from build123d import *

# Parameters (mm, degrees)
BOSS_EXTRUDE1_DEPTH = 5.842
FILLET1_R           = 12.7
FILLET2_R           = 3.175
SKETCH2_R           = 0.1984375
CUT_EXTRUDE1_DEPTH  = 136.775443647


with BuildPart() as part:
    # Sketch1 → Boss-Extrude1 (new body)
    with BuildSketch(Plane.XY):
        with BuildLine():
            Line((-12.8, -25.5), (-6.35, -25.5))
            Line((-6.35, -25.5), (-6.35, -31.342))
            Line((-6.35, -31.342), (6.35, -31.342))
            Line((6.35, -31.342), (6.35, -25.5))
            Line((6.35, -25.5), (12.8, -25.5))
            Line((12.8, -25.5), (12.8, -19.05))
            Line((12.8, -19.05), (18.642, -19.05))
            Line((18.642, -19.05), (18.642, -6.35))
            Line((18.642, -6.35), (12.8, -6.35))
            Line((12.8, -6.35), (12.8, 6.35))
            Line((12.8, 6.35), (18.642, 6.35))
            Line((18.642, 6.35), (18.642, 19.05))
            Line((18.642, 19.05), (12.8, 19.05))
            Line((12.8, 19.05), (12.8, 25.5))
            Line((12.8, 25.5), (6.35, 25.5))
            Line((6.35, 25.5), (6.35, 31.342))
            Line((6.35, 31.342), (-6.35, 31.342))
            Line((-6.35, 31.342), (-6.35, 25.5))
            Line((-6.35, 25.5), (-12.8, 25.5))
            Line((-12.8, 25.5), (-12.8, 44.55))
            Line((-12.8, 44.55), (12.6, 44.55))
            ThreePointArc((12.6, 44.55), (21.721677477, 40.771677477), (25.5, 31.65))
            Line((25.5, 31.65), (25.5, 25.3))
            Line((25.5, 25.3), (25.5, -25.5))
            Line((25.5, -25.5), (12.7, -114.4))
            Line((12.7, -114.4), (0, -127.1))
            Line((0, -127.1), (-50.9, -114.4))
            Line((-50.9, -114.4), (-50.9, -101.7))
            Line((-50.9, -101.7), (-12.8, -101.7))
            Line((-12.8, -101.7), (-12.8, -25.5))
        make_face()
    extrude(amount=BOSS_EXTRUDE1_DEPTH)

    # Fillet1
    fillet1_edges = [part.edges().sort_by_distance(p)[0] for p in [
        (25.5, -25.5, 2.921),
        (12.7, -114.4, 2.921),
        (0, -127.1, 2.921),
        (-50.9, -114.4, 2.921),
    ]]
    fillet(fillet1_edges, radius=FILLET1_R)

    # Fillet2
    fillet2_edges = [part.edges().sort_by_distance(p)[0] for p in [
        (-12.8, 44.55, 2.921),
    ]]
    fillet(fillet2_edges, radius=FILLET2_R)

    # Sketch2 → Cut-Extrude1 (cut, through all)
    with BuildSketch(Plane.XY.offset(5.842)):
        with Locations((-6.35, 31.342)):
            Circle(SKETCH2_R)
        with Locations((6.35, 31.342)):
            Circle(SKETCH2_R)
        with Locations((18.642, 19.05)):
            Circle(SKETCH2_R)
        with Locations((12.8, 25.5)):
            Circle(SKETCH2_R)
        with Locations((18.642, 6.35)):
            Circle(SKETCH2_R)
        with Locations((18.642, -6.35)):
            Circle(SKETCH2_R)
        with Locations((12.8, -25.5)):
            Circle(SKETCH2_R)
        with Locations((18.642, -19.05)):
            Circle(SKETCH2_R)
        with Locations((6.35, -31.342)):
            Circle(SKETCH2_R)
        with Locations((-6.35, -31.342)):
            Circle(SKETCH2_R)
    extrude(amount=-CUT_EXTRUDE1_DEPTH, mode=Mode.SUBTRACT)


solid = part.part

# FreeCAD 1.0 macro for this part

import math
import FreeCAD as App
import Part
import Sketcher
from FreeCAD import Vector
Q = App.Units.Quantity


def edges_at(feature, points):
    """Names of the edges that pass closest to the given points."""
    edges = feature.Shape.Edges
    near = lambda p: min(range(len(edges)), key=lambda i: edges[i].distToShape(Part.Vertex(*p))[0])
    return sorted({f"Edge{near(p) + 1}" for p in points})

doc = App.newDocument("Part")
params = doc.addObject("Spreadsheet::Sheet", "Params")
for row, (alias, value) in enumerate([
    ("sketch1_width", "1 in"),
    ("sketch1_height", "3 in"),
    ("sketch1_width2", "1.5 in"),
    ("sketch1_width3", "0.5 in"),
    ("sketch1_width4", "0.23 in"),
    ("pad1_length", "0.23 in"),
    ("fillet_radius", "0.5 in"),
    ("fillet2_radius", "0.125 in"),
    ("sketch2_diameter", "0.015625 in"),
], start=1):
    params.set(f"A{row}", alias)
    params.set(f"B{row}", "=" + value)
    params.setAlias(f"B{row}", alias)

body = doc.addObject("PartDesign::Body", "Body")

# Sketch on XY plane
sketch1 = body.newObject("Sketcher::SketchObject", "Sketch")
sketch1.AttachmentSupport = (doc.getObject("XY_Plane"), [""])
sketch1.MapMode = "FlatFace"
sketch1.addGeometry([
    Part.LineSegment(Vector(-6, -26, 0), Vector(-13, -26, 0)),  # 0
    Part.LineSegment(Vector(-13, -26, 0), Vector(-13, -102, 0)),  # 1
    Part.LineSegment(Vector(-13, -102, 0), Vector(-51, -102, 0)),  # 2
    Part.LineSegment(Vector(-51, -102, 0), Vector(-51, -114, 0)),  # 3
    Part.LineSegment(Vector(-51, -114, 0), Vector(0, -127, 0)),  # 4
    Part.LineSegment(Vector(0, -127, 0), Vector(13, -114, 0)),  # 5
    Part.LineSegment(Vector(13, -114, 0), Vector(26, -26, 0)),  # 6
    Part.LineSegment(Vector(26, -26, 0), Vector(26, 32, 0)),  # 7
    Part.ArcOfCircle(Part.Circle(Vector(13, 32, 0), Vector(0, 0, 1), 13), math.radians(0), math.radians(90)),  # 8
    Part.LineSegment(Vector(13, 45, 0), Vector(-13, 45, 0)),  # 9
    Part.LineSegment(Vector(-13, 45, 0), Vector(-13, 26, 0)),  # 10
    Part.LineSegment(Vector(-13, 26, 0), Vector(-6, 26, 0)),  # 11
    Part.LineSegment(Vector(-6, 26, 0), Vector(-6, 31, 0)),  # 12
    Part.LineSegment(Vector(-6, 31, 0), Vector(6, 31, 0)),  # 13
    Part.LineSegment(Vector(6, 31, 0), Vector(6, 26, 0)),  # 14
    Part.LineSegment(Vector(6, 26, 0), Vector(13, 26, 0)),  # 15
    Part.LineSegment(Vector(13, 26, 0), Vector(13, 19, 0)),  # 16
    Part.LineSegment(Vector(13, 19, 0), Vector(19, 19, 0)),  # 17
    Part.LineSegment(Vector(19, 19, 0), Vector(19, 6, 0)),  # 18
    Part.LineSegment(Vector(19, 6, 0), Vector(13, 6, 0)),  # 19
    Part.LineSegment(Vector(13, 6, 0), Vector(13, -6, 0)),  # 20
    Part.LineSegment(Vector(13, -6, 0), Vector(19, -6, 0)),  # 21
    Part.LineSegment(Vector(19, -6, 0), Vector(19, -19, 0)),  # 22
    Part.LineSegment(Vector(19, -19, 0), Vector(13, -19, 0)),  # 23
    Part.LineSegment(Vector(13, -19, 0), Vector(13, -26, 0)),  # 24
    Part.LineSegment(Vector(13, -26, 0), Vector(6, -26, 0)),  # 25
    Part.LineSegment(Vector(6, -26, 0), Vector(6, -31, 0)),  # 26
    Part.LineSegment(Vector(6, -31, 0), Vector(-6, -31, 0)),  # 27
    Part.LineSegment(Vector(-6, -31, 0), Vector(-6, -26, 0)),  # 28
], False)
sketch1.addConstraint([
    Sketcher.Constraint("Coincident", 0, 2, 1, 1),
    Sketcher.Constraint("Coincident", 1, 2, 2, 1),
    Sketcher.Constraint("Coincident", 2, 2, 3, 1),
    Sketcher.Constraint("Coincident", 3, 2, 4, 1),
    Sketcher.Constraint("Coincident", 4, 2, 5, 1),
    Sketcher.Constraint("Coincident", 5, 2, 6, 1),
    Sketcher.Constraint("Coincident", 6, 2, 7, 1),
    Sketcher.Constraint("Tangent", 7, 2, 8, 1),
    Sketcher.Constraint("Tangent", 8, 2, 9, 1),
    Sketcher.Constraint("Coincident", 9, 2, 10, 1),
    Sketcher.Constraint("Coincident", 10, 2, 11, 1),
    Sketcher.Constraint("Coincident", 11, 2, 12, 1),
    Sketcher.Constraint("Coincident", 12, 2, 13, 1),
    Sketcher.Constraint("Coincident", 13, 2, 14, 1),
    Sketcher.Constraint("Coincident", 14, 2, 15, 1),
    Sketcher.Constraint("Coincident", 15, 2, 16, 1),
    Sketcher.Constraint("Coincident", 16, 2, 17, 1),
    Sketcher.Constraint("Coincident", 17, 2, 18, 1),
    Sketcher.Constraint("Coincident", 18, 2, 19, 1),
    Sketcher.Constraint("Coincident", 19, 2, 20, 1),
    Sketcher.Constraint("Coincident", 20, 2, 21, 1),
    Sketcher.Constraint("Coincident", 21, 2, 22, 1),
    Sketcher.Constraint("Coincident", 22, 2, 23, 1),
    Sketcher.Constraint("Coincident", 23, 2, 24, 1),
    Sketcher.Constraint("Coincident", 24, 2, 25, 1),
    Sketcher.Constraint("Coincident", 25, 2, 26, 1),
    Sketcher.Constraint("Coincident", 26, 2, 27, 1),
    Sketcher.Constraint("Coincident", 27, 2, 28, 1),
    Sketcher.Constraint("Coincident", 28, 2, 0, 1),
    Sketcher.Constraint("Horizontal", 0),
    Sketcher.Constraint("Vertical", 1),
    Sketcher.Constraint("Horizontal", 2),
    Sketcher.Constraint("Vertical", 3),
    Sketcher.Constraint("Vertical", 7),
    Sketcher.Constraint("Horizontal", 9),
    Sketcher.Constraint("Vertical", 10),
    Sketcher.Constraint("Horizontal", 11),
    Sketcher.Constraint("Vertical", 12),
    Sketcher.Constraint("Horizontal", 13),
    Sketcher.Constraint("Vertical", 14),
    Sketcher.Constraint("Horizontal", 15),
    Sketcher.Constraint("Vertical", 16),
    Sketcher.Constraint("Horizontal", 17),
    Sketcher.Constraint("Vertical", 18),
    Sketcher.Constraint("Horizontal", 19),
    Sketcher.Constraint("Vertical", 20),
    Sketcher.Constraint("Horizontal", 21),
    Sketcher.Constraint("Vertical", 22),
    Sketcher.Constraint("Horizontal", 23),
    Sketcher.Constraint("Vertical", 24),
    Sketcher.Constraint("Horizontal", 25),
    Sketcher.Constraint("Vertical", 26),
    Sketcher.Constraint("Horizontal", 27),
    Sketcher.Constraint("Vertical", 28),
    Sketcher.Constraint("Symmetric", 0, 2, 15, 2, -1, 1),
    Sketcher.Constraint("Symmetric", 10, 2, 24, 2, -1, 1),
    Sketcher.Constraint("Symmetric", 12, 2, 26, 2, -1, 1),
    Sketcher.Constraint("Symmetric", 11, 2, 14, 2, -2),
    Sketcher.Constraint("Symmetric", 18, 2, 21, 2, -1),
    Sketcher.Constraint("Symmetric", 16, 2, 23, 2, -1),
    Sketcher.Constraint("PointOnObject", 4, 2, -2),
    Sketcher.Constraint("Horizontal", 3, 2, 5, 2),
    Sketcher.Constraint("Horizontal", 0, 2, 6, 2),
    Sketcher.Constraint("Vertical", 16, 2, 19, 2),
    Sketcher.Constraint("Vertical", 12, 2, 27, 2),
    Sketcher.Constraint("Equal", 27, 3),
    Sketcher.Constraint("Equal", 23, 12),
    Sketcher.Constraint("Equal", 25, 16),
    Sketcher.Constraint("Equal", 3, 18),
    Sketcher.Constraint("Equal", 18, 20),
    Sketcher.Constraint("DistanceX", 9, 2, 9, 1, Q("1 in")),
    Sketcher.Constraint("DistanceY", 1, 2, 1, 1, Q("3 in")),
    Sketcher.Constraint("DistanceX", 2, 2, 2, 1, Q("1.5 in")),
    Sketcher.Constraint("DistanceX", 13, 1, 13, 2, Q("0.5 in")),
    Sketcher.Constraint("Angle", 5, Q("45 deg")),
    Sketcher.Constraint("DistanceY", 4, 2, 1, 2, Q("1 in")),
    Sketcher.Constraint("DistanceX", 17, 1, 17, 2, Q("0.23 in")),
    Sketcher.Constraint("DistanceY", 7, 1, 7, 2, Q("2.25 in")),
    Sketcher.Constraint("DistanceY", 10, 2, 10, 1, Q("0.75 in")),
    Sketcher.Constraint("Radius", 8, Q("12.9 mm")),
])
sketch1.setExpression("Constraints[70]", "Params.sketch1_width")
sketch1.setExpression("Constraints[71]", "Params.sketch1_height")
sketch1.setExpression("Constraints[72]", "Params.sketch1_width2")
sketch1.setExpression("Constraints[73]", "Params.sketch1_width3")
sketch1.setExpression("Constraints[76]", "Params.sketch1_width4")
pad1 = body.newObject("PartDesign::Pad", "Pad")
pad1.Profile = sketch1
pad1.setExpression("Length", "Params.pad1_length")
doc.recompute()

fillet = body.newObject("PartDesign::Fillet", "Fillet")
fillet.Base = (pad1, edges_at(pad1, [
    (25.5, -25.5, 2.921),
    (12.7, -114.4, 2.921),
    (0, -127.1, 2.921),
    (-50.9, -114.4, 2.921),
]))
fillet.setExpression("Radius", "Params.fillet_radius")
doc.recompute()

fillet2 = body.newObject("PartDesign::Fillet", "Fillet001")
fillet2.Base = (fillet, edges_at(fillet, [(-12.8, 44.55, 2.921)]))
fillet2.setExpression("Radius", "Params.fillet2_radius")

# Sketch on XY plane
sketch2 = body.newObject("Sketcher::SketchObject", "Sketch001")
sketch2.AttachmentSupport = (doc.getObject("XY_Plane"), [""])
sketch2.MapMode = "FlatFace"
sketch2.AttachmentOffset = App.Placement(Vector(0, 0, 0.23 * 25.4), App.Rotation())
sketch2.addGeometry([
    Part.Circle(Vector(-6.35, 31.34, 0), Vector(0, 0, 1), 0.2),  # 0
    Part.Circle(Vector(6.35, 31.34, 0), Vector(0, 0, 1), 0.2),  # 1
    Part.Circle(Vector(18.64, 19.05, 0), Vector(0, 0, 1), 0.2),  # 2
    Part.Circle(Vector(12.8, 25.5, 0), Vector(0, 0, 1), 0.2),  # 3
    Part.Circle(Vector(18.64, 6.35, 0), Vector(0, 0, 1), 0.2),  # 4
    Part.Circle(Vector(18.64, -6.35, 0), Vector(0, 0, 1), 0.2),  # 5
    Part.Circle(Vector(12.8, -25.5, 0), Vector(0, 0, 1), 0.2),  # 6
    Part.Circle(Vector(18.64, -19.05, 0), Vector(0, 0, 1), 0.2),  # 7
    Part.Circle(Vector(6.35, -31.34, 0), Vector(0, 0, 1), 0.2),  # 8
    Part.Circle(Vector(-6.35, -31.34, 0), Vector(0, 0, 1), 0.2),  # 9
], False)
sketch2.addConstraint([
    Sketcher.Constraint("Equal", 0, 1),
    Sketcher.Constraint("Equal", 1, 2),
    Sketcher.Constraint("Equal", 2, 3),
    Sketcher.Constraint("Equal", 3, 4),
    Sketcher.Constraint("Equal", 4, 5),
    Sketcher.Constraint("Equal", 5, 6),
    Sketcher.Constraint("Equal", 6, 7),
    Sketcher.Constraint("Equal", 7, 8),
    Sketcher.Constraint("Equal", 8, 9),
    Sketcher.Constraint("Symmetric", 0, 3, 8, 3, -1, 1),
    Sketcher.Constraint("Symmetric", 1, 3, 9, 3, -1, 1),
    Sketcher.Constraint("Symmetric", 0, 3, 1, 3, -2),
    Sketcher.Constraint("Symmetric", 4, 3, 5, 3, -1),
    Sketcher.Constraint("Symmetric", 3, 3, 6, 3, -1),
    Sketcher.Constraint("Symmetric", 2, 3, 7, 3, -1),
    Sketcher.Constraint("Vertical", 2, 3, 4, 3),
    Sketcher.Constraint("Diameter", 0, Q("0.015625 in")),
    Sketcher.Constraint("DistanceY", 5, 3, 2, 3, Q("1 in")),
    Sketcher.Constraint("DistanceX", 0, 3, 1, 3, Q("0.5 in")),
    Sketcher.Constraint("DistanceY", 4, 3, 2, 3, Q("0.5 in")),
    Sketcher.Constraint("DistanceX", 3, 3, 2, 3, Q("0.23 in")),
    Sketcher.Constraint("DistanceY", 3, 3, 1, 3, Q("0.23 in")),
    Sketcher.Constraint("DistanceY", -1, 1, 0, 3, Q("31.342 mm")),
    Sketcher.Constraint("DistanceX", -1, 1, 2, 3, Q("18.642 mm")),
])
sketch2.setExpression("Constraints[16]", "Params.sketch2_diameter")
pocket1 = body.newObject("PartDesign::Pocket", "Pocket")
pocket1.Profile = sketch2
pocket1.Type = "ThroughAll"

doc.recompute()
